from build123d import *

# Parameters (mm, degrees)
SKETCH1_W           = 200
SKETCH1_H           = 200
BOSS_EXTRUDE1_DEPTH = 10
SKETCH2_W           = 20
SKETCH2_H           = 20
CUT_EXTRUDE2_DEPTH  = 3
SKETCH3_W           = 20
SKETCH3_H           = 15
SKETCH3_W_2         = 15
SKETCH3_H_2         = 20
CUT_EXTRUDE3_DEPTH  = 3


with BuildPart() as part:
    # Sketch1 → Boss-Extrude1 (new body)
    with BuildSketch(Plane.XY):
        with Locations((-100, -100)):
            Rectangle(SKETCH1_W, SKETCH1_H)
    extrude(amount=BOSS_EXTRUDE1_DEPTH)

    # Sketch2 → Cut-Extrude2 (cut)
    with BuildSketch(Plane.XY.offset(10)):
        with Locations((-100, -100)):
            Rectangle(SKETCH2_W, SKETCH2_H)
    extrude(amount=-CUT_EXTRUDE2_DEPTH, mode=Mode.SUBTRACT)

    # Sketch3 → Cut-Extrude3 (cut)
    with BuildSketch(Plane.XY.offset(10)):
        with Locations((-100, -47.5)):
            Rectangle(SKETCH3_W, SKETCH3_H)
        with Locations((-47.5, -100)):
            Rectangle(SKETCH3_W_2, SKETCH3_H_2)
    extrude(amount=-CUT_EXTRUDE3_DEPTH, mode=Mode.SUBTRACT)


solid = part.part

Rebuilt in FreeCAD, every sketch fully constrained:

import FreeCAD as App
import Part
import Sketcher
Q = App.Units.Quantity

doc = App.newDocument("Part")
body = doc.addObject("PartDesign::Body", "Body")

# Sketch on XY plane
sketch1 = doc.addObject("Sketcher::SketchObject", "Sketch")
body.addObject(sketch1)
sketch1.AttachmentSupport = (doc.XY_Plane, [""])
sketch1.MapMode = "FlatFace"
sketch1.addGeometry([
    Part.LineSegment(App.Vector(-200, 0, 0), App.Vector(-200, -200, 0)),
    Part.LineSegment(App.Vector(-200, -200, 0), App.Vector(0, -200, 0)),
    Part.LineSegment(App.Vector(0, -200, 0), App.Vector(0, 0, 0)),
    Part.LineSegment(App.Vector(0, 0, 0), App.Vector(-200, 0, 0)),
], False)
sketch1.addConstraint([
    Sketcher.Constraint("Coincident", 0, 2, 1, 1),
    Sketcher.Constraint("Coincident", 1, 2, 2, 1),
    Sketcher.Constraint("Coincident", 2, 2, 3, 1),
    Sketcher.Constraint("Coincident", 3, 2, 0, 1),
    Sketcher.Constraint("Vertical", 0),
    Sketcher.Constraint("Horizontal", 1),
    Sketcher.Constraint("Vertical", 2),
    Sketcher.Constraint("Horizontal", 3),
    Sketcher.Constraint("Coincident", 2, 2, -1, 1),
    Sketcher.Constraint("Equal", 3, 0),
    Sketcher.Constraint("DistanceX", 1, 1, 1, 2, Q("200 mm")),
])
pad1 = doc.addObject("PartDesign::Pad", "Pad")
body.addObject(pad1)
pad1.Profile = sketch1
pad1.Length = 10

# Sketch on XY plane
sketch2 = doc.addObject("Sketcher::SketchObject", "Sketch001")
body.addObject(sketch2)
sketch2.AttachmentSupport = (doc.XY_Plane, [""])
sketch2.MapMode = "FlatFace"
sketch2.AttachmentOffset = App.Placement(App.Vector(0, 0, 10), App.Rotation())
sketch2.addGeometry([
    Part.LineSegment(App.Vector(-110, -90, 0), App.Vector(-110, -110, 0)),
    Part.LineSegment(App.Vector(-110, -110, 0), App.Vector(-90, -110, 0)),
    Part.LineSegment(App.Vector(-90, -110, 0), App.Vector(-90, -90, 0)),
    Part.LineSegment(App.Vector(-90, -90, 0), App.Vector(-110, -90, 0)),
], False)
sketch2.addConstraint([
    Sketcher.Constraint("Coincident", 0, 2, 1, 1),
    Sketcher.Constraint("Coincident", 1, 2, 2, 1),
    Sketcher.Constraint("Coincident", 2, 2, 3, 1),
    Sketcher.Constraint("Coincident", 3, 2, 0, 1),
    Sketcher.Constraint("Vertical", 0),
    Sketcher.Constraint("Horizontal", 1),
    Sketcher.Constraint("Vertical", 2),
    Sketcher.Constraint("Horizontal", 3),
    Sketcher.Constraint("Equal", 3, 0),
    Sketcher.Constraint("DistanceX", 1, 1, 1, 2, Q("20 mm")),
    Sketcher.Constraint("DistanceX", 0, 2, -1, 1, Q("110 mm")),
    Sketcher.Constraint("DistanceY", 0, 2, -1, 1, Q("110 mm")),
])
pocket1 = doc.addObject("PartDesign::Pocket", "Pocket")
body.addObject(pocket1)
pocket1.Profile = sketch2
pocket1.Length = 3

# Sketch on XY plane
sketch3 = doc.addObject("Sketcher::SketchObject", "Sketch002")
body.addObject(sketch3)
sketch3.AttachmentSupport = (doc.XY_Plane, [""])
sketch3.MapMode = "FlatFace"
sketch3.AttachmentOffset = App.Placement(App.Vector(0, 0, 10), App.Rotation())
sketch3.addGeometry([
    Part.LineSegment(App.Vector(-110, -40, 0), App.Vector(-110, -55, 0)),  # 0
    Part.LineSegment(App.Vector(-110, -55, 0), App.Vector(-90, -55, 0)),  # 1
    Part.LineSegment(App.Vector(-90, -55, 0), App.Vector(-90, -40, 0)),  # 2
    Part.LineSegment(App.Vector(-90, -40, 0), App.Vector(-110, -40, 0)),  # 3
    Part.LineSegment(App.Vector(-55, -90, 0), App.Vector(-55, -110, 0)),  # 4
    Part.LineSegment(App.Vector(-55, -110, 0), App.Vector(-40, -110, 0)),  # 5
    Part.LineSegment(App.Vector(-40, -110, 0), App.Vector(-40, -90, 0)),  # 6
    Part.LineSegment(App.Vector(-40, -90, 0), App.Vector(-55, -90, 0)),  # 7
], False)
sketch3.addConstraint([
    Sketcher.Constraint("Coincident", 0, 2, 1, 1),
    Sketcher.Constraint("Coincident", 1, 2, 2, 1),
    Sketcher.Constraint("Coincident", 2, 2, 3, 1),
    Sketcher.Constraint("Coincident", 3, 2, 0, 1),
    Sketcher.Constraint("Coincident", 4, 2, 5, 1),
    Sketcher.Constraint("Coincident", 5, 2, 6, 1),
    Sketcher.Constraint("Coincident", 6, 2, 7, 1),
    Sketcher.Constraint("Coincident", 7, 2, 4, 1),
    Sketcher.Constraint("Vertical", 0),
    Sketcher.Constraint("Horizontal", 1),
    Sketcher.Constraint("Vertical", 2),
    Sketcher.Constraint("Horizontal", 3),
    Sketcher.Constraint("Vertical", 4),
    Sketcher.Constraint("Horizontal", 5),
    Sketcher.Constraint("Vertical", 6),
    Sketcher.Constraint("Horizontal", 7),
    Sketcher.Constraint("Equal", 7, 0),
    Sketcher.Constraint("Equal", 3, 4),
    Sketcher.Constraint("DistanceX", 1, 1, 1, 2, Q("20 mm")),
    Sketcher.Constraint("DistanceX", 5, 1, 5, 2, Q("15 mm")),
    Sketcher.Constraint("DistanceX", 0, 2, -1, 1, Q("110 mm")),
    Sketcher.Constraint("DistanceY", 0, 2, -1, 1, Q("55 mm")),
    Sketcher.Constraint("DistanceX", 4, 2, -1, 1, Q("55 mm")),
    Sketcher.Constraint("DistanceY", 4, 2, -1, 1, Q("110 mm")),
])
pocket2 = doc.addObject("PartDesign::Pocket", "Pocket001")
body.addObject(pocket2)
pocket2.Profile = sketch3
pocket2.Length = 3

doc.recompute()
